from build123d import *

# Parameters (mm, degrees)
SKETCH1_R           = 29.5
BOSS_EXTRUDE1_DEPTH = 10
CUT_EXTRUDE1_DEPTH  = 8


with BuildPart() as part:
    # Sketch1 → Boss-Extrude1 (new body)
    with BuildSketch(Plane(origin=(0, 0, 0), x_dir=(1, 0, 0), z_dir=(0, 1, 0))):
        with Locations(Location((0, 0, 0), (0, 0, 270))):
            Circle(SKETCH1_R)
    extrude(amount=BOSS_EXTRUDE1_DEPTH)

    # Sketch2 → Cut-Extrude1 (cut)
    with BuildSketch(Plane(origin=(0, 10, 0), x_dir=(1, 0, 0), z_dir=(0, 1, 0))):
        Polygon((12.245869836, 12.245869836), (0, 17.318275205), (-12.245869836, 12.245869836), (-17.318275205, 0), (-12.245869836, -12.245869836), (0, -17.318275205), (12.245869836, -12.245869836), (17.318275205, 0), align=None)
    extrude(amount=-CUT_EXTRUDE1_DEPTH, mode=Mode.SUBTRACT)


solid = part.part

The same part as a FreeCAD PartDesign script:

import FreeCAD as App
import Part
import Sketcher
Q = App.Units.Quantity


def add_polygon(sketch, points):
    """Adds a closed chain of lines whose ends are joined by coincident constraints."""
    first, n = sketch.GeometryCount, len(points)
    for a, b in zip(points, points[1:] + points[:1]):
        sketch.addGeometry(Part.LineSegment(App.Vector(*a, 0), App.Vector(*b, 0)), False)
    for i in range(n):
        sketch.addConstraint(Sketcher.Constraint("Coincident", first + i, 2, first + (i + 1) % n, 1))

doc = App.newDocument("Part")
body = doc.addObject("PartDesign::Body", "Body")

# Sketch on XZ plane
sketch1 = body.newObject("Sketcher::SketchObject", "Sketch")
sketch1.AttachmentSupport = (doc.getObject("XZ_Plane"), [""])
sketch1.MapMode = "FlatFace"
sketch1.addGeometry(Part.Circle(App.Vector(0, 0, 0), App.Vector(0, 0, 1), 29.5), False)
sketch1.addConstraint([
    Sketcher.Constraint("Coincident", 0, 3, -1, 1),
    Sketcher.Constraint("Diameter", 0, Q("59 mm")),
])
pad1 = body.newObject("PartDesign::Pad", "Pad")
pad1.Profile = sketch1
pad1.Length = 10
pad1.Reversed = True

# Sketch on XZ plane
sketch2 = body.newObject("Sketcher::SketchObject", "Sketch001")
sketch2.AttachmentSupport = (doc.getObject("XZ_Plane"), [""])
sketch2.MapMode = "FlatFace"
sketch2.AttachmentOffset = App.Placement(App.Vector(0, 0, -10), App.Rotation())
add_polygon(sketch2, [(12.24587, -12.24587), (0, -17.318275), (-12.24587, -12.24587), (-17.318275, 0), (-12.24587, 12.24587), (0, 17.318275), (12.24587, 12.24587), (17.318275, 0)])  # lines 0-7
sketch2.addConstraint([
    Sketcher.Constraint("Symmetric", 0, 2, 4, 2, -1, 1),
    Sketcher.Constraint("Symmetric", 1, 2, 5, 2, -1, 1),
    Sketcher.Constraint("Symmetric", 2, 2, 6, 2, -1, 1),
    Sketcher.Constraint("Symmetric", 3, 2, 7, 2, -1, 1),
    Sketcher.Constraint("Symmetric", 3, 2, 5, 2, -2),
    Sketcher.Constraint("PointOnObject", 0, 2, -2),
    Sketcher.Constraint("PointOnObject", 2, 2, -1),
    Sketcher.Constraint("Perpendicular", 0, 2),
    Sketcher.Constraint("Equal", 1, 2),
    Sketcher.Constraint("Angle", 0, Q("-157.5 deg")),
    Sketcher.Constraint("DistanceX", 1, 2, -1, 1, Q("12.24587 mm")),
])
pocket1 = body.newObject("PartDesign::Pocket", "Pocket")
pocket1.Profile = sketch2
pocket1.Length = 8
pocket1.Reversed = True

doc.recompute()
